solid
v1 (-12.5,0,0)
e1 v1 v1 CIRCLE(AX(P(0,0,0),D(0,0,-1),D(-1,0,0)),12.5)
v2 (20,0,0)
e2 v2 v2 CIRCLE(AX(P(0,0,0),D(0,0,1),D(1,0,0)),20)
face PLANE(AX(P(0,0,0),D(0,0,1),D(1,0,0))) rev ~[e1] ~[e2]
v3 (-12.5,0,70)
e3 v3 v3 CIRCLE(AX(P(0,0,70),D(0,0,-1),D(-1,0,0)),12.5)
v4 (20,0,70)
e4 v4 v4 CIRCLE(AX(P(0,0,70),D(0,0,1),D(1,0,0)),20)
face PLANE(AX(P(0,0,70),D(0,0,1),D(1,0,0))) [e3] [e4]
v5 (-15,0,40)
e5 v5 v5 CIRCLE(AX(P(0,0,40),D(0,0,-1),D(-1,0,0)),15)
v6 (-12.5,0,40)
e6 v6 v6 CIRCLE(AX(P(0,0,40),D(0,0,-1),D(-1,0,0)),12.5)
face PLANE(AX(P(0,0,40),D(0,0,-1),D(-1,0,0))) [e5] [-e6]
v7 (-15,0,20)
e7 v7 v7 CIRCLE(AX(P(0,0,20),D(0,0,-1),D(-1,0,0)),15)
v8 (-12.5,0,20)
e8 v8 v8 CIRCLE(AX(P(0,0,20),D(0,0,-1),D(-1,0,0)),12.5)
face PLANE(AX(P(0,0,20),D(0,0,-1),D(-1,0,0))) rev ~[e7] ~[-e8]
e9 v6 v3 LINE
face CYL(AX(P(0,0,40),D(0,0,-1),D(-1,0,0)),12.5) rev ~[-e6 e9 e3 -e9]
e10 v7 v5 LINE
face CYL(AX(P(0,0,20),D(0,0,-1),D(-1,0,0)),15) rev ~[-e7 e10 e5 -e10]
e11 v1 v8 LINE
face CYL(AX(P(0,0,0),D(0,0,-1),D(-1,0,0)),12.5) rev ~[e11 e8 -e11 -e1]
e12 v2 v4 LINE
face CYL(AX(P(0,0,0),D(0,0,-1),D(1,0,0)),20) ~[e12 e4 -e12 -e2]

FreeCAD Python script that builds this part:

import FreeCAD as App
import Part
import Sketcher

V = App.Vector

doc = App.newDocument("Part")
body = doc.addObject("PartDesign::Body", "Body")

sketch1 = body.newObject("Sketcher::SketchObject", "Sketch")
sketch1.AttachmentSupport = (doc.getObject("XY_Plane"), [""])
sketch1.MapMode = "FlatFace"
sketch1.addGeometry(Part.Circle(V(0, 0, 0), V(0, 0, 1), 20), False)
sketch1.addConstraint([
    Sketcher.Constraint("Coincident", 0, 3, -1, 1),
    Sketcher.Constraint("Diameter", 0, 40.0),
])
pad1 = body.newObject("PartDesign::Pad", "Pad")
pad1.Profile = sketch1
pad1.Length = 70

sketch2 = body.newObject("Sketcher::SketchObject", "Sketch001")
sketch2.AttachmentSupport = (doc.getObject("XY_Plane"), [""])
sketch2.MapMode = "FlatFace"
sketch2.addGeometry(Part.Circle(V(0, 0, 0), V(0, 0, 1), 12), False)
sketch2.addConstraint([
    Sketcher.Constraint("Coincident", 0, 3, -1, 1),
    Sketcher.Constraint("Diameter", 0, 25.0),
])
pocket1 = body.newObject("PartDesign::Pocket", "Pocket")
pocket1.Profile = sketch2
pocket1.Length = 20
pocket1.Reversed = True

sketch3 = body.newObject("Sketcher::SketchObject", "Sketch002")
sketch3.AttachmentSupport = (doc.getObject("XY_Plane"), [""])
sketch3.MapMode = "FlatFace"
sketch3.AttachmentOffset = App.Placement(V(0, 0, 20), App.Rotation())
sketch3.addGeometry(Part.Circle(V(0, 0, 0), V(0, 0, 1), 15), False)
sketch3.addConstraint([
    Sketcher.Constraint("Coincident", 0, 3, -1, 1),
    Sketcher.Constraint("Diameter", 0, 30.0),
])
pocket2 = body.newObject("PartDesign::Pocket", "Pocket001")
pocket2.Profile = sketch3
pocket2.Length = 20
pocket2.Reversed = True

sketch4 = body.newObject("Sketcher::SketchObject", "Sketch003")
sketch4.AttachmentSupport = (doc.getObject("XY_Plane"), [""])
sketch4.MapMode = "FlatFace"
sketch4.AttachmentOffset = App.Placement(V(0, 0, 40), App.Rotation())
sketch4.addGeometry(Part.Circle(V(0, 0, 0), V(0, 0, 1), 12), False)
sketch4.addConstraint([
    Sketcher.Constraint("Coincident", 0, 3, -1, 1),
    Sketcher.Constraint("Diameter", 0, 25.0),
])
pocket3 = body.newObject("PartDesign::Pocket", "Pocket002")
pocket3.Profile = sketch4
pocket3.Type = "UpToFirst"
pocket3.Reversed = True

doc.recompute()
